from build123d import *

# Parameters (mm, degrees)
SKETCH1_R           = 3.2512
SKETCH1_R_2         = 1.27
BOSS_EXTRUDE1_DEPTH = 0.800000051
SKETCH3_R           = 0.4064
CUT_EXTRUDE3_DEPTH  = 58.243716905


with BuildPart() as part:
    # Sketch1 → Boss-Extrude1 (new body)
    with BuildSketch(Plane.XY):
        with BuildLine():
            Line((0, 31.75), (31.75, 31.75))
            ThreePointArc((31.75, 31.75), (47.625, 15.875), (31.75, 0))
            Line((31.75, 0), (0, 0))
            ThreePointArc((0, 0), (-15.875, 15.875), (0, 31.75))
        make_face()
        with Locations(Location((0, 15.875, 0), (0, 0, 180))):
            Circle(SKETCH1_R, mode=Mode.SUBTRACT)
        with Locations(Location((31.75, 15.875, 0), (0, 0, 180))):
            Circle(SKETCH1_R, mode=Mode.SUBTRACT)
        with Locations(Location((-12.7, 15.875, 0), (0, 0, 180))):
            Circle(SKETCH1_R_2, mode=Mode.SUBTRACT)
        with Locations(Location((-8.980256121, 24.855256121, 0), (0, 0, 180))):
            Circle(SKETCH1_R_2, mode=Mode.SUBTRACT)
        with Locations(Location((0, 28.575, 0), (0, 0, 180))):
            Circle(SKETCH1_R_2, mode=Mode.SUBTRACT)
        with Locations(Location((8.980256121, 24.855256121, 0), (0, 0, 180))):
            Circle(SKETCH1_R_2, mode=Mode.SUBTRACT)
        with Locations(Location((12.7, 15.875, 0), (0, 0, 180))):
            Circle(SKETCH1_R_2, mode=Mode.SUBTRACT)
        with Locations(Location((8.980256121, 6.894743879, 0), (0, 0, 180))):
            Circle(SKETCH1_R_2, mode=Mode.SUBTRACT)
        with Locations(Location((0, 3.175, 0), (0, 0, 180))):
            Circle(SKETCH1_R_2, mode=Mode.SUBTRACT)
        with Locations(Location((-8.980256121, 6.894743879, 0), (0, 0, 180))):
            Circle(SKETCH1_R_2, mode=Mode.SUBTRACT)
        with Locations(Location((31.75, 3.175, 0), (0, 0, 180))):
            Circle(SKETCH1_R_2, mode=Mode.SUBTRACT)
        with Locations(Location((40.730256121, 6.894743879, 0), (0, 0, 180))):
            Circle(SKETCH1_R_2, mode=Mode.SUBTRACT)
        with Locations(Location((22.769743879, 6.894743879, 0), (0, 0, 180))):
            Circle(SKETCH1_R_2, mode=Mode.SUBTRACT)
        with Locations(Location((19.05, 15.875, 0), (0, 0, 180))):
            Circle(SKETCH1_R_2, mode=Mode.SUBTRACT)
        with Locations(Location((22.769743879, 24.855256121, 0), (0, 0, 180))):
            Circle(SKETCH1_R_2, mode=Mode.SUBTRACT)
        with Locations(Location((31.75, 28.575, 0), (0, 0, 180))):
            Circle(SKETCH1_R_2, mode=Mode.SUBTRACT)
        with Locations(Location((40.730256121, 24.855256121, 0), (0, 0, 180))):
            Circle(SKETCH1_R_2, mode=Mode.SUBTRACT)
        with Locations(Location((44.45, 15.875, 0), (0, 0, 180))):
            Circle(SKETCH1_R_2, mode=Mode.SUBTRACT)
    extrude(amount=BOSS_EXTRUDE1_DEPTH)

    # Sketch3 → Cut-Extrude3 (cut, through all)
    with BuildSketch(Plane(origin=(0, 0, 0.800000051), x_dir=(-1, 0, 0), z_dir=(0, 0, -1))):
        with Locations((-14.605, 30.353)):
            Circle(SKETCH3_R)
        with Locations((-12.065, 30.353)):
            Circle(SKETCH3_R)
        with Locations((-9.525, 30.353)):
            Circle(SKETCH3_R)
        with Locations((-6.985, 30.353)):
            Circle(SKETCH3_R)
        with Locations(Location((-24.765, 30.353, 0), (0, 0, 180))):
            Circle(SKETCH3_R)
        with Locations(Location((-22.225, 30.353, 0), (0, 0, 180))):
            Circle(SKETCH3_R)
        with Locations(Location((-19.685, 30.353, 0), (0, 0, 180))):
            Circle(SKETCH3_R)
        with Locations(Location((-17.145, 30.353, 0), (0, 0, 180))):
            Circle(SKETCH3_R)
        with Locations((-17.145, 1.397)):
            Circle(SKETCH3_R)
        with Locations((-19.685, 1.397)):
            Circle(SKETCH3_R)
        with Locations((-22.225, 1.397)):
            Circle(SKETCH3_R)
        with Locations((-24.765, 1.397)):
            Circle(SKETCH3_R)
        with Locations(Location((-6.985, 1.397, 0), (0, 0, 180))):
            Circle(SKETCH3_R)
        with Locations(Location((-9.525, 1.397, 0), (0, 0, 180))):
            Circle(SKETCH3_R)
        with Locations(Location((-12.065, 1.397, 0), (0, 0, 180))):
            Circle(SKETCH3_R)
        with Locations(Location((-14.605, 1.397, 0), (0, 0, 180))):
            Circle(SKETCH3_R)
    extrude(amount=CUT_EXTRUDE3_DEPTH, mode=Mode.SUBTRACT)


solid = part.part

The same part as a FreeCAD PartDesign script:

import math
import FreeCAD as App
import Part
import Sketcher

V = App.Vector
Q = App.Units.Quantity

doc = App.newDocument("Part")
body = doc.addObject("PartDesign::Body", "Body")

sketch1 = doc.addObject("Sketcher::SketchObject", "Sketch")
body.addObject(sketch1)
sketch1.AttachmentSupport = (doc.XY_Plane, [""])
sketch1.MapMode = "FlatFace"
sketch1.addGeometry(Part.LineSegment(V(31.8, 31.8, 0), V(0, 31.8, 0)), False)
sketch1.addGeometry(Part.ArcOfCircle(Part.Circle(V(0, 15.9, 0), V(0, 0, 1), 15.9), math.radians(90), math.radians(270)), False)
sketch1.addGeometry(Part.LineSegment(V(0, 0, 0), V(31.8, 0, 0)), False)
sketch1.addGeometry(Part.ArcOfCircle(Part.Circle(V(31.8, 15.9, 0), V(0, 0, 1), 15.9), math.radians(-90), math.radians(90)), False)
sketch1.addGeometry(Part.Circle(V(31.8, 3.2, 0), V(0, 0, 1), 1.3), False)
sketch1.addGeometry(Part.Circle(V(40.7, 6.9, 0), V(0, 0, 1), 1.3), False)
sketch1.addGeometry(Part.Circle(V(22.8, 6.9, 0), V(0, 0, 1), 1.3), False)
sketch1.addGeometry(Part.Circle(V(9, 6.9, 0), V(0, 0, 1), 1.3), False)
sketch1.addGeometry(Part.Circle(V(0, 3.2, 0), V(0, 0, 1), 1.3), False)
sketch1.addGeometry(Part.Circle(V(-9, 6.9, 0), V(0, 0, 1), 1.3), False)
sketch1.addGeometry(Part.Circle(V(44.5, 15.9, 0), V(0, 0, 1), 1.3), False)
sketch1.addGeometry(Part.Circle(V(31.8, 15.9, 0), V(0, 0, 1), 3.3), False)
sketch1.addGeometry(Part.Circle(V(19.1, 15.9, 0), V(0, 0, 1), 1.3), False)
sketch1.addGeometry(Part.Circle(V(40.7, 24.9, 0), V(0, 0, 1), 1.3), False)
sketch1.addGeometry(Part.Circle(V(31.8, 28.6, 0), V(0, 0, 1), 1.3), False)
sketch1.addGeometry(Part.Circle(V(22.8, 24.9, 0), V(0, 0, 1), 1.3), False)
sketch1.addGeometry(Part.Circle(V(12.7, 15.9, 0), V(0, 0, 1), 1.3), False)
sketch1.addGeometry(Part.Circle(V(0, 15.9, 0), V(0, 0, 1), 3.3), False)
sketch1.addGeometry(Part.Circle(V(-12.7, 15.9, 0), V(0, 0, 1), 1.3), False)
sketch1.addGeometry(Part.Circle(V(9, 24.9, 0), V(0, 0, 1), 1.3), False)
sketch1.addGeometry(Part.Circle(V(-9, 24.9, 0), V(0, 0, 1), 1.3), False)
sketch1.addGeometry(Part.Circle(V(0, 28.6, 0), V(0, 0, 1), 1.3), False)
sketch1.addConstraint(Sketcher.Constraint("Tangent", 0, 2, 1, 1))
sketch1.addConstraint(Sketcher.Constraint("Tangent", 1, 2, 2, 1))
sketch1.addConstraint(Sketcher.Constraint("Tangent", 2, 2, 3, 1))
sketch1.addConstraint(Sketcher.Constraint("Tangent", 3, 2, 0, 1))
sketch1.addConstraint(Sketcher.Constraint("Horizontal", 0))
sketch1.addConstraint(Sketcher.Constraint("Horizontal", 2))
sketch1.addConstraint(Sketcher.Constraint("Coincident", 1, 2, -1, 1))
sketch1.addConstraint(Sketcher.Constraint("Coincident", 11, 3, 3, 3))
sketch1.addConstraint(Sketcher.Constraint("Coincident", 17, 3, 1, 3))
sketch1.addConstraint(Sketcher.Constraint("Equal", 4, 5))
sketch1.addConstraint(Sketcher.Constraint("Equal", 5, 6))
sketch1.addConstraint(Sketcher.Constraint("Equal", 6, 7))
sketch1.addConstraint(Sketcher.Constraint("Equal", 7, 8))
sketch1.addConstraint(Sketcher.Constraint("Equal", 8, 9))
sketch1.addConstraint(Sketcher.Constraint("Equal", 9, 10))
sketch1.addConstraint(Sketcher.Constraint("Equal", 10, 12))
sketch1.addConstraint(Sketcher.Constraint("Equal", 12, 13))
sketch1.addConstraint(Sketcher.Constraint("Equal", 13, 14))
sketch1.addConstraint(Sketcher.Constraint("Equal", 14, 15))
sketch1.addConstraint(Sketcher.Constraint("Equal", 15, 16))
sketch1.addConstraint(Sketcher.Constraint("Equal", 11, 17))
sketch1.addConstraint(Sketcher.Constraint("Equal", 16, 18))
sketch1.addConstraint(Sketcher.Constraint("Equal", 18, 19))
sketch1.addConstraint(Sketcher.Constraint("Equal", 19, 20))
sketch1.addConstraint(Sketcher.Constraint("Equal", 20, 21))
sketch1.addConstraint(Sketcher.Constraint("Symmetric", 7, 3, 9, 3, -2))
sketch1.addConstraint(Sketcher.Constraint("Symmetric", 16, 3, 18, 3, -2))
sketch1.addConstraint(Sketcher.Constraint("Symmetric", 19, 3, 20, 3, -2))
sketch1.addConstraint(Sketcher.Constraint("PointOnObject", 8, 3, -2))
sketch1.addConstraint(Sketcher.Constraint("PointOnObject", 21, 3, -2))
sketch1.addConstraint(Sketcher.Constraint("Horizontal", 5, 3, 6, 3))
sketch1.addConstraint(Sketcher.Constraint("Horizontal", 6, 3, 7, 3))
sketch1.addConstraint(Sketcher.Constraint("Horizontal", 4, 3, 8, 3))
sketch1.addConstraint(Sketcher.Constraint("Horizontal", 3, 3, 10, 3))
sketch1.addConstraint(Sketcher.Constraint("Horizontal", 11, 3, 12, 3))
sketch1.addConstraint(Sketcher.Constraint("Horizontal", 13, 3, 15, 3))
sketch1.addConstraint(Sketcher.Constraint("Horizontal", 12, 3, 16, 3))
sketch1.addConstraint(Sketcher.Constraint("Horizontal", 15, 3, 19, 3))
sketch1.addConstraint(Sketcher.Constraint("Horizontal", 14, 3, 21, 3))
sketch1.addConstraint(Sketcher.Constraint("Vertical", 3, 3, 4, 3))
sketch1.addConstraint(Sketcher.Constraint("Vertical", 5, 3, 13, 3))
sketch1.addConstraint(Sketcher.Constraint("Vertical", 11, 3, 14, 3))
sketch1.addConstraint(Sketcher.Constraint("Vertical", 6, 3, 15, 3))
sketch1.addConstraint(Sketcher.Constraint("Vertical", 7, 3, 19, 3))
sketch1.addConstraint(Sketcher.Constraint("Diameter", 4, Q("0.1 in")))
sketch1.addConstraint(Sketcher.Constraint("Diameter", 11, Q("0.256 in")))
sketch1.addConstraint(Sketcher.Constraint("Radius", 1, Q("0.625 in")))
sketch1.addConstraint(Sketcher.Constraint("DistanceX", 0, 2, 0, 1, Q("1.25 in")))
sketch1.addConstraint(Sketcher.Constraint("DistanceX", -1, 1, 16, 3, Q("0.5 in")))
sketch1.addConstraint(Sketcher.Constraint("DistanceY", 4, 3, 3, 3, Q("0.5 in")))
sketch1.addConstraint(Sketcher.Constraint("DistanceX", 3, 3, 10, 3, Q("0.5 in")))
sketch1.addConstraint(Sketcher.Constraint("DistanceX", 12, 3, 3, 3, Q("0.5 in")))
sketch1.addConstraint(Sketcher.Constraint("DistanceY", 3, 3, 14, 3, Q("0.5 in")))
sketch1.addConstraint(Sketcher.Constraint("DistanceX", 7, 3, 5, 3, Q("1.25 in")))
sketch1.addConstraint(Sketcher.Constraint("DistanceX", 9, 3, 6, 3, Q("1.25 in")))
sketch1.addConstraint(Sketcher.Constraint("DistanceX", -1, 1, 5, 3, Q("40.730256 mm")))
sketch1.addConstraint(Sketcher.Constraint("DistanceY", -1, 1, 5, 3, Q("6.894744 mm")))
sketch1.addConstraint(Sketcher.Constraint("DistanceY", -1, 1, 13, 3, Q("24.855256 mm")))
pad1 = doc.addObject("PartDesign::Pad", "Pad")
body.addObject(pad1)
pad1.Profile = sketch1
pad1.Length = 0.8

sketch2 = doc.addObject("Sketcher::SketchObject", "Sketch001")
body.addObject(sketch2)
sketch2.AttachmentSupport = (doc.XY_Plane, [""])
sketch2.MapMode = "FlatFace"
sketch2.AttachmentOffset = App.Placement(V(0, 0, 0.8), App.Rotation())
sketch2.addGeometry(Part.Circle(V(14.61, 30.35, 0), V(0, 0, 1), 0.41), False)
sketch2.addGeometry(Part.Circle(V(12.06, 30.35, 0), V(0, 0, 1), 0.41), False)
sketch2.addGeometry(Part.Circle(V(9.53, 30.35, 0), V(0, 0, 1), 0.41), False)
sketch2.addGeometry(Part.Circle(V(6.99, 30.35, 0), V(0, 0, 1), 0.41), False)
sketch2.addGeometry(Part.Circle(V(24.77, 30.35, 0), V(0, 0, 1), 0.41), False)
sketch2.addGeometry(Part.Circle(V(22.23, 30.35, 0), V(0, 0, 1), 0.41), False)
sketch2.addGeometry(Part.Circle(V(19.68, 30.35, 0), V(0, 0, 1), 0.41), False)
sketch2.addGeometry(Part.Circle(V(17.14, 30.35, 0), V(0, 0, 1), 0.41), False)
sketch2.addGeometry(Part.Circle(V(17.14, 1.4, 0), V(0, 0, 1), 0.41), False)
sketch2.addGeometry(Part.Circle(V(19.68, 1.4, 0), V(0, 0, 1), 0.41), False)
sketch2.addGeometry(Part.Circle(V(22.23, 1.4, 0), V(0, 0, 1), 0.41), False)
sketch2.addGeometry(Part.Circle(V(24.77, 1.4, 0), V(0, 0, 1), 0.41), False)
sketch2.addGeometry(Part.Circle(V(6.99, 1.4, 0), V(0, 0, 1), 0.41), False)
sketch2.addGeometry(Part.Circle(V(9.53, 1.4, 0), V(0, 0, 1), 0.41), False)
sketch2.addGeometry(Part.Circle(V(12.06, 1.4, 0), V(0, 0, 1), 0.41), False)
sketch2.addGeometry(Part.Circle(V(14.61, 1.4, 0), V(0, 0, 1), 0.41), False)
sketch2.addConstraint(Sketcher.Constraint("Equal", 0, 1))
sketch2.addConstraint(Sketcher.Constraint("Equal", 1, 2))
sketch2.addConstraint(Sketcher.Constraint("Equal", 2, 3))
sketch2.addConstraint(Sketcher.Constraint("Equal", 3, 4))
sketch2.addConstraint(Sketcher.Constraint("Equal", 4, 5))
sketch2.addConstraint(Sketcher.Constraint("Equal", 5, 6))
sketch2.addConstraint(Sketcher.Constraint("Equal", 6, 7))
sketch2.addConstraint(Sketcher.Constraint("Equal", 7, 8))
sketch2.addConstraint(Sketcher.Constraint("Equal", 8, 9))
sketch2.addConstraint(Sketcher.Constraint("Equal", 9, 10))
sketch2.addConstraint(Sketcher.Constraint("Equal", 10, 11))
sketch2.addConstraint(Sketcher.Constraint("Equal", 11, 12))
sketch2.addConstraint(Sketcher.Constraint("Equal", 12, 13))
sketch2.addConstraint(Sketcher.Constraint("Equal", 13, 14))
sketch2.addConstraint(Sketcher.Constraint("Equal", 14, 15))
sketch2.addConstraint(Sketcher.Constraint("Horizontal", 0, 3, 1, 3))
sketch2.addConstraint(Sketcher.Constraint("Horizontal", 1, 3, 2, 3))
sketch2.addConstraint(Sketcher.Constraint("Horizontal", 2, 3, 3, 3))
sketch2.addConstraint(Sketcher.Constraint("Horizontal", 3, 3, 4, 3))
sketch2.addConstraint(Sketcher.Constraint("Horizontal", 4, 3, 5, 3))
sketch2.addConstraint(Sketcher.Constraint("Horizontal", 5, 3, 6, 3))
sketch2.addConstraint(Sketcher.Constraint("Horizontal", 6, 3, 7, 3))
sketch2.addConstraint(Sketcher.Constraint("Horizontal", 8, 3, 9, 3))
sketch2.addConstraint(Sketcher.Constraint("Horizontal", 9, 3, 10, 3))
sketch2.addConstraint(Sketcher.Constraint("Horizontal", 10, 3, 11, 3))
sketch2.addConstraint(Sketcher.Constraint("Horizontal", 11, 3, 12, 3))
sketch2.addConstraint(Sketcher.Constraint("Horizontal", 12, 3, 13, 3))
sketch2.addConstraint(Sketcher.Constraint("Horizontal", 13, 3, 14, 3))
sketch2.addConstraint(Sketcher.Constraint("Horizontal", 14, 3, 15, 3))
sketch2.addConstraint(Sketcher.Constraint("Vertical", 7, 3, 8, 3))
sketch2.addConstraint(Sketcher.Constraint("Vertical", 6, 3, 9, 3))
sketch2.addConstraint(Sketcher.Constraint("Vertical", 5, 3, 10, 3))
sketch2.addConstraint(Sketcher.Constraint("Vertical", 4, 3, 11, 3))
sketch2.addConstraint(Sketcher.Constraint("Vertical", 3, 3, 12, 3))
sketch2.addConstraint(Sketcher.Constraint("Vertical", 2, 3, 13, 3))
sketch2.addConstraint(Sketcher.Constraint("Vertical", 1, 3, 14, 3))
sketch2.addConstraint(Sketcher.Constraint("Vertical", 0, 3, 15, 3))
sketch2.addConstraint(Sketcher.Constraint("Diameter", 0, Q("0.032 in")))
sketch2.addConstraint(Sketcher.Constraint("DistanceX", 1, 3, 0, 3, Q("0.1 in")))
sketch2.addConstraint(Sketcher.Constraint("DistanceX", 2, 3, 1, 3, Q("0.1 in")))
sketch2.addConstraint(Sketcher.Constraint("DistanceX", 3, 3, 2, 3, Q("0.1 in")))
sketch2.addConstraint(Sketcher.Constraint("DistanceX", 0, 3, 4, 3, Q("0.4 in")))
sketch2.addConstraint(Sketcher.Constraint("DistanceX", 5, 3, 4, 3, Q("0.1 in")))
sketch2.addConstraint(Sketcher.Constraint("DistanceX", 6, 3, 5, 3, Q("0.1 in")))
sketch2.addConstraint(Sketcher.Constraint("DistanceX", 0, 3, 7, 3, Q("0.1 in")))
sketch2.addConstraint(Sketcher.Constraint("DistanceY", 8, 3, 7, 3, Q("1.14 in")))
sketch2.addConstraint(Sketcher.Constraint("DistanceX", -1, 1, 0, 3, Q("0.575 in")))
sketch2.addConstraint(Sketcher.Constraint("DistanceY", -1, 1, 0, 3, Q("1.195 in")))
pocket1 = doc.addObject("PartDesign::Pocket", "Pocket")
body.addObject(pocket1)
pocket1.Profile = sketch2
pocket1.Type = "ThroughAll"

doc.recompute()
